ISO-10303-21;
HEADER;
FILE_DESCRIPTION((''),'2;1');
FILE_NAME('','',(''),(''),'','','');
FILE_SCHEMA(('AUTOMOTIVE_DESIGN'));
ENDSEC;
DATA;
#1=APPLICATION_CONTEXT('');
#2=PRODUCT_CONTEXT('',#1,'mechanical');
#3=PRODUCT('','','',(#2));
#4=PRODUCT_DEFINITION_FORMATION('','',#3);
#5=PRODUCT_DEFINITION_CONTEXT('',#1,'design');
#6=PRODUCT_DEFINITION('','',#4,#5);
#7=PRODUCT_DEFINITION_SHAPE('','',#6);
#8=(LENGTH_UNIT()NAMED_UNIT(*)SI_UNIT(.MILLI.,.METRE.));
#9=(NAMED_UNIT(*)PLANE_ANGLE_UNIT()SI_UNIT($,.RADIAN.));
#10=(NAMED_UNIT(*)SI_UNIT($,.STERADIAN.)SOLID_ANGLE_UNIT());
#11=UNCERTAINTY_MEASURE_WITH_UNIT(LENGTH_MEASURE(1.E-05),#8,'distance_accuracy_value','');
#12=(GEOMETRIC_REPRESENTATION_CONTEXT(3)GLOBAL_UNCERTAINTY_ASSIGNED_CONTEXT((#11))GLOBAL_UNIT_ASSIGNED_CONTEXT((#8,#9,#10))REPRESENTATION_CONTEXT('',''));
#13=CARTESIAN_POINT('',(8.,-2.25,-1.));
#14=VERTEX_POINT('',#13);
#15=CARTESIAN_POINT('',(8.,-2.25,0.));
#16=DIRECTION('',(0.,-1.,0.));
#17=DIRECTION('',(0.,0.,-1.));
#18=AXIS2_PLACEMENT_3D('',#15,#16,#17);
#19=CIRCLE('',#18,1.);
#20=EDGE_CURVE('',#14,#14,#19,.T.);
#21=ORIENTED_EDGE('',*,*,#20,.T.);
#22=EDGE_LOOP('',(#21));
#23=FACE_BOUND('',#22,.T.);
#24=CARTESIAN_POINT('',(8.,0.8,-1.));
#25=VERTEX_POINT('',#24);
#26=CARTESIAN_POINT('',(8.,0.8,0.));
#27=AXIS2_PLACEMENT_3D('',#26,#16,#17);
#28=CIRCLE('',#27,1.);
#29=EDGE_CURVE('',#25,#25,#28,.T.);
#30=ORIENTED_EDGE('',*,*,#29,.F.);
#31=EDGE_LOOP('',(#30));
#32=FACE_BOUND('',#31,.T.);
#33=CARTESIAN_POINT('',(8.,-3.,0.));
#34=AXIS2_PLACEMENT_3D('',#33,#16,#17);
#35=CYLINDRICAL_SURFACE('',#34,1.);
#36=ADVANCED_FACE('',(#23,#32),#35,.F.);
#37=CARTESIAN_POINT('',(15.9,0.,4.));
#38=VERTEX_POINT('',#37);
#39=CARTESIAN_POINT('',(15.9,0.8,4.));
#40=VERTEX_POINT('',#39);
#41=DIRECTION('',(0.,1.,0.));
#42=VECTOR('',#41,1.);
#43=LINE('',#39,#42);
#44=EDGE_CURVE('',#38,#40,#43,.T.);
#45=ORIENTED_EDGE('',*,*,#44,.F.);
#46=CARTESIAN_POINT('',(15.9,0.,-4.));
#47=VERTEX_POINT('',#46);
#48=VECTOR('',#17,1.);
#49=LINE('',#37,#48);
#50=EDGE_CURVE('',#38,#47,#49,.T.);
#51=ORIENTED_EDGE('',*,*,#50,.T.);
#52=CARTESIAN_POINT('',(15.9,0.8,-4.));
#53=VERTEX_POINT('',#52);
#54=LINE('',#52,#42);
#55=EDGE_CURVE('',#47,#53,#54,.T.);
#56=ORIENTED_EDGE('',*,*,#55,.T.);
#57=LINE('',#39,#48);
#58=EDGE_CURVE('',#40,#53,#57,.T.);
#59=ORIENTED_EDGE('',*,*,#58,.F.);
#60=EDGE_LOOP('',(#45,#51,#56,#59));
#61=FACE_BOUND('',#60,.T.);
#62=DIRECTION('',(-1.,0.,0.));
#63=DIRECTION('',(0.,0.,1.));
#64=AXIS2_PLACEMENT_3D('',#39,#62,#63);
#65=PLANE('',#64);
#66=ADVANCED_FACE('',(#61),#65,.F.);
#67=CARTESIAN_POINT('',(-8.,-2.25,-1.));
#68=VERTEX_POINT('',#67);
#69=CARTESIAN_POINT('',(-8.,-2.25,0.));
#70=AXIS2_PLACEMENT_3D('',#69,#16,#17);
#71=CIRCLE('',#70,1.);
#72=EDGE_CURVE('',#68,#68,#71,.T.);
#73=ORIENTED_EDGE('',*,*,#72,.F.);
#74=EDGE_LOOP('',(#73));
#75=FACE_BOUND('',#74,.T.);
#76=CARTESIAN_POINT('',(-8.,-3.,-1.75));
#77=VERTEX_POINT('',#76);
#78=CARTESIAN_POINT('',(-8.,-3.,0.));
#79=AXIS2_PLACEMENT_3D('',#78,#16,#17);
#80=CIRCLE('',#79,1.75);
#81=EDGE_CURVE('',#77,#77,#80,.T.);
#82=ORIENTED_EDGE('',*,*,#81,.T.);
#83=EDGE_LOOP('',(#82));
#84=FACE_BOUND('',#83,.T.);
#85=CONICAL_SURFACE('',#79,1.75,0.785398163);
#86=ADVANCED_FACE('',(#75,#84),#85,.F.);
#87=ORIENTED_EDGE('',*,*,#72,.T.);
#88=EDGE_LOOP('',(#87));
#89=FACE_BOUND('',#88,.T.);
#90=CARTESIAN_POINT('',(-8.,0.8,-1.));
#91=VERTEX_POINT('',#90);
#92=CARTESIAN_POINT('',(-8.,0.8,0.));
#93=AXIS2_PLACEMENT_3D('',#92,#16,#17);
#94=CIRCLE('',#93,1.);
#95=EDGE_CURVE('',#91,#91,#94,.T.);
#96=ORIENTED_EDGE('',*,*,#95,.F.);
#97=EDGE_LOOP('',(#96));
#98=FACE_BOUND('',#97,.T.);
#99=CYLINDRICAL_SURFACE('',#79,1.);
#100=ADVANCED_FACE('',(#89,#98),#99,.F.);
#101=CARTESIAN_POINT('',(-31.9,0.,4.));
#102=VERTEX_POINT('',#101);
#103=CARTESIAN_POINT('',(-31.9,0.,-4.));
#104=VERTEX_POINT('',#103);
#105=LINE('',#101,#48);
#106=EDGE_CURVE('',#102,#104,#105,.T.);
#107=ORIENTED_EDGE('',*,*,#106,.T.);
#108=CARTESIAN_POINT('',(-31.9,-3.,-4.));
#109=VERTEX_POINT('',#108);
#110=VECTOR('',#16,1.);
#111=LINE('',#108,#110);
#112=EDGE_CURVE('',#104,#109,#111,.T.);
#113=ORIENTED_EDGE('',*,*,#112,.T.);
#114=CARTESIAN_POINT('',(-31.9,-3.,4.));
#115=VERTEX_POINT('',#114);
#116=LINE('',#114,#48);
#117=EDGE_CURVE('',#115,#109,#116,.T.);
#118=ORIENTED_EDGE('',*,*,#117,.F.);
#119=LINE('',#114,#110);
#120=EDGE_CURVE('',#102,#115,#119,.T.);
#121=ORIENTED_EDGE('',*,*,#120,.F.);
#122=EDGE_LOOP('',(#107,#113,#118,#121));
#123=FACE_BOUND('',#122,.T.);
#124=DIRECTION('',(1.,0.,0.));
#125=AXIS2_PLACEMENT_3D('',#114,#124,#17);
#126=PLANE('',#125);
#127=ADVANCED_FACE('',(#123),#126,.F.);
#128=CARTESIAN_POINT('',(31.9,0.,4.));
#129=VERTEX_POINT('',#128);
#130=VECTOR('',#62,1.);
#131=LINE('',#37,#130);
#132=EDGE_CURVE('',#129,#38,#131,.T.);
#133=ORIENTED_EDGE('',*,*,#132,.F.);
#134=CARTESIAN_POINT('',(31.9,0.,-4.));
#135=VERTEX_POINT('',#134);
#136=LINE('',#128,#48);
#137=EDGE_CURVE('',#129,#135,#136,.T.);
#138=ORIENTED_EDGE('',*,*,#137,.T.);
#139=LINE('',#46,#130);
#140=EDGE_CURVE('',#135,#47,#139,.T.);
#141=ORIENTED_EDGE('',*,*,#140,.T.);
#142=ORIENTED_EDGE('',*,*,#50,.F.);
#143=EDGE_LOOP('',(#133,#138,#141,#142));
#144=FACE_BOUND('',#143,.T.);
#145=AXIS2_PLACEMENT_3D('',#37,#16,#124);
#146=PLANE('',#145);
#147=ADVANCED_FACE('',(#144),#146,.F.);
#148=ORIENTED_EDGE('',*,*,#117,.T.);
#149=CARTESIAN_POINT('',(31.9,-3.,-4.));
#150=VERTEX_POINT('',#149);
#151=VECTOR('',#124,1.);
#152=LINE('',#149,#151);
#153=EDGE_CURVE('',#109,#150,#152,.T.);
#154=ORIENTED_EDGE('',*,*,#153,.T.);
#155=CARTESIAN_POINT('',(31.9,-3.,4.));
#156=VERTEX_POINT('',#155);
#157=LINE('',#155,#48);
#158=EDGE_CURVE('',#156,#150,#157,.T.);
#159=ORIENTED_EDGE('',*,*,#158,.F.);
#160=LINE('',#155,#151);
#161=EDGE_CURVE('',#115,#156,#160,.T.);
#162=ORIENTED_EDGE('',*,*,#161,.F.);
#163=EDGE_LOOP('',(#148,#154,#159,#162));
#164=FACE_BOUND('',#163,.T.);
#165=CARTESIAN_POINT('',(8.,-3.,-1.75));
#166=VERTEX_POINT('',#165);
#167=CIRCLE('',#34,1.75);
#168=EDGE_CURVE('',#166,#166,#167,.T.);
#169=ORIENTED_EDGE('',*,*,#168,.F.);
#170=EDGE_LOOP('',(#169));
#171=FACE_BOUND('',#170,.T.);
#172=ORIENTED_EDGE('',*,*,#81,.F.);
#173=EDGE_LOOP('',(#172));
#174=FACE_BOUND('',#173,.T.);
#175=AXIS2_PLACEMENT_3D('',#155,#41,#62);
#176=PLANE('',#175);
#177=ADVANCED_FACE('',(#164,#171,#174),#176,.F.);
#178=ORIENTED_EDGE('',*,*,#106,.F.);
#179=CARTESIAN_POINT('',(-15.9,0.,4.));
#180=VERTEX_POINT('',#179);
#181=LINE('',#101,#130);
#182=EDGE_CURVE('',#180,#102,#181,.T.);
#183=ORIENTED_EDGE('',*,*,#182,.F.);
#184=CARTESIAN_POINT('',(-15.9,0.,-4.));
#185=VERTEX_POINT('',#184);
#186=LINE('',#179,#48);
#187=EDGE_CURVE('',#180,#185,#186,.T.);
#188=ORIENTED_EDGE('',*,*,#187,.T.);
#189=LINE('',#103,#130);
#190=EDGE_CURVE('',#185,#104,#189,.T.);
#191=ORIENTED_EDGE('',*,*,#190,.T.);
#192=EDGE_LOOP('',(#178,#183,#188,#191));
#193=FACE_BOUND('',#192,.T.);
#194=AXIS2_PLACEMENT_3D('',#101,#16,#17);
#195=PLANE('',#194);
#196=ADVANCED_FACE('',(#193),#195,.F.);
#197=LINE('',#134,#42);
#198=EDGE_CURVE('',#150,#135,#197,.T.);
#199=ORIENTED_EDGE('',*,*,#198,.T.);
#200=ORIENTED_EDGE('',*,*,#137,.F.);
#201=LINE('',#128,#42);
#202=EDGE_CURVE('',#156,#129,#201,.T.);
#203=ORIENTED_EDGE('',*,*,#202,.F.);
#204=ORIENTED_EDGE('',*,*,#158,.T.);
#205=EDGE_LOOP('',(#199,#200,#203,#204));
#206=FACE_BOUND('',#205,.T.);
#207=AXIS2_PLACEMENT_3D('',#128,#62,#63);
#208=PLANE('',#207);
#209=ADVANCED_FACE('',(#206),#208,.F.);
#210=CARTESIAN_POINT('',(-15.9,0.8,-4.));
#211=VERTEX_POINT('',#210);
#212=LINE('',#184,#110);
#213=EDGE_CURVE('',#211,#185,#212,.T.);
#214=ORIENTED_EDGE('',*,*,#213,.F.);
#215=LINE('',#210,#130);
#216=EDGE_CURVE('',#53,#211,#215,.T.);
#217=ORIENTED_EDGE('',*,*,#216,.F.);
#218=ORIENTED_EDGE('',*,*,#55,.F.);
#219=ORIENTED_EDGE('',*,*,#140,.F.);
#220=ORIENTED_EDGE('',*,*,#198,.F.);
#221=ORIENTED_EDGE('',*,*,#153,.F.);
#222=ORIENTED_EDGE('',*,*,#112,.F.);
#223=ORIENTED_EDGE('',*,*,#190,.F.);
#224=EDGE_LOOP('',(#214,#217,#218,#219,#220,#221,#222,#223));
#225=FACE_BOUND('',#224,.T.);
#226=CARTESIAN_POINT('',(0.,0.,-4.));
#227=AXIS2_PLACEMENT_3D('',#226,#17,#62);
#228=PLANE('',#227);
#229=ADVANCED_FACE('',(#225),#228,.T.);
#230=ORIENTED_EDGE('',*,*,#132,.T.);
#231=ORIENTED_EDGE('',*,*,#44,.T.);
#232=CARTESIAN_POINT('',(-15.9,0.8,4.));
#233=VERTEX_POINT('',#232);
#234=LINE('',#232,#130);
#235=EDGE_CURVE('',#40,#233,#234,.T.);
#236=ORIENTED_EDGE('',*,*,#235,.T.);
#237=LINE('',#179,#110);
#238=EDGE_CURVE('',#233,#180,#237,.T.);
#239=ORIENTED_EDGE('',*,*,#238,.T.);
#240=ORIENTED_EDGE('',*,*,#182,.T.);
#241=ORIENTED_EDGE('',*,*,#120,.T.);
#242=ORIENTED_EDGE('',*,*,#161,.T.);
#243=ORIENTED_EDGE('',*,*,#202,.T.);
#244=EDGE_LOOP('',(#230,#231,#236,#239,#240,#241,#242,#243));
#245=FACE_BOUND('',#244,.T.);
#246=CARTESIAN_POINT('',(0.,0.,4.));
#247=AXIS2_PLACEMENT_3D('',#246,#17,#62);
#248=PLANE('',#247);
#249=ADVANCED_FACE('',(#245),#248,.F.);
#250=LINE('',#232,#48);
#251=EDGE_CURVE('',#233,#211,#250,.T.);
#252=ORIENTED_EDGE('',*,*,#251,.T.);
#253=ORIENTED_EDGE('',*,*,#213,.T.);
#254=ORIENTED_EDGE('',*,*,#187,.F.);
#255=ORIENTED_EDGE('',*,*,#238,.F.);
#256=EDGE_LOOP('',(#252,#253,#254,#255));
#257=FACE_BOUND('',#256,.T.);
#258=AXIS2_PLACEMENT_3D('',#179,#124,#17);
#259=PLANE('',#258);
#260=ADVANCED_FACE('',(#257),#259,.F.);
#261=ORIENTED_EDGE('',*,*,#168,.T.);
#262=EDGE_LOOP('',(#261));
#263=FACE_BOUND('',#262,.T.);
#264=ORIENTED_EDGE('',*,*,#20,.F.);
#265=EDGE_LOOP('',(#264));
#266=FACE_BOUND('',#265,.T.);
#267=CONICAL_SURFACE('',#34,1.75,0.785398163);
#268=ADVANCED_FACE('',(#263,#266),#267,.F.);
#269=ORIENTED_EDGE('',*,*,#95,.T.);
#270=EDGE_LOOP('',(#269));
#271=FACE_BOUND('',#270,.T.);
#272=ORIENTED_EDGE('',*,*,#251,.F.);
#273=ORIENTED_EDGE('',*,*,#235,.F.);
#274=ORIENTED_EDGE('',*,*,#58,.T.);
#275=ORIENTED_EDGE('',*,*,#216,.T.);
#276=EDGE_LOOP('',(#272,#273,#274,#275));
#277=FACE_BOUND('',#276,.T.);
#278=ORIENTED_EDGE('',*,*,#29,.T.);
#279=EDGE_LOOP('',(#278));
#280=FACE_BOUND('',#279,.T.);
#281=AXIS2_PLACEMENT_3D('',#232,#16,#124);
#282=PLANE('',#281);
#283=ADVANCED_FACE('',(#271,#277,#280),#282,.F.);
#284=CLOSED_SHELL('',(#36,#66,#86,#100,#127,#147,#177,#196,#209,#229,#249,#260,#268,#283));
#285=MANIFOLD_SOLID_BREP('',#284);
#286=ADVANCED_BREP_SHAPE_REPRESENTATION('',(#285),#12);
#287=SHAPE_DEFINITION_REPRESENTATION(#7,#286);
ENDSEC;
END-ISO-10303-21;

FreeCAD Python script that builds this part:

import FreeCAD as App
import Part
import Sketcher

doc = App.newDocument("Part")
body = doc.addObject("PartDesign::Body", "Body")

# Sketch on XY plane
sketch1 = body.newObject("Sketcher::SketchObject", "Sketch")
sketch1.AttachmentSupport = (doc.getObject("XY_Plane"), [""])
sketch1.MapMode = "FlatFace"
sketch1.addGeometry([
    Part.LineSegment(App.Vector(-15.9, 0, 0), App.Vector(-31.9, 0, 0)),  # 0
    Part.LineSegment(App.Vector(-31.9, 0, 0), App.Vector(-31.9, -3, 0)),  # 1
    Part.LineSegment(App.Vector(-31.9, -3, 0), App.Vector(31.9, -3, 0)),  # 2
    Part.LineSegment(App.Vector(31.9, -3, 0), App.Vector(31.9, 0, 0)),  # 3
    Part.LineSegment(App.Vector(31.9, 0, 0), App.Vector(15.9, 0, 0)),  # 4
    Part.LineSegment(App.Vector(15.9, 0, 0), App.Vector(15.9, 0.8, 0)),  # 5
    Part.LineSegment(App.Vector(15.9, 0.8, 0), App.Vector(-15.9, 0.8, 0)),  # 6
    Part.LineSegment(App.Vector(-15.9, 0.8, 0), App.Vector(-15.9, 0, 0)),  # 7
], False)
sketch1.addConstraint([
    Sketcher.Constraint("Coincident", 0, 2, 1, 1),
    Sketcher.Constraint("Coincident", 1, 2, 2, 1),
    Sketcher.Constraint("Coincident", 2, 2, 3, 1),
    Sketcher.Constraint("Coincident", 3, 2, 4, 1),
    Sketcher.Constraint("Coincident", 4, 2, 5, 1),
    Sketcher.Constraint("Coincident", 5, 2, 6, 1),
    Sketcher.Constraint("Coincident", 6, 2, 7, 1),
    Sketcher.Constraint("Coincident", 7, 2, 0, 1),
    Sketcher.Constraint("Horizontal", 0),
    Sketcher.Constraint("Vertical", 1),
    Sketcher.Constraint("Horizontal", 2),
    Sketcher.Constraint("Vertical", 3),
    Sketcher.Constraint("Horizontal", 4),
    Sketcher.Constraint("Vertical", 5),
    Sketcher.Constraint("Horizontal", 6),
    Sketcher.Constraint("Vertical", 7),
    Sketcher.Constraint("Symmetric", 0, 2, 3, 2, -1, 1),
    Sketcher.Constraint("Symmetric", 4, 2, 7, 2, -2),
    Sketcher.Constraint("DistanceX", 0, 2, 0, 1, 16.0),
    Sketcher.Constraint("DistanceY", 1, 2, 1, 1, 3.0),
    Sketcher.Constraint("DistanceX", 2, 1, 2, 2, 63.8),
    Sketcher.Constraint("DistanceY", 5, 1, 5, 2, 0.8),
])
pad1 = body.newObject("PartDesign::Pad", "Pad")
pad1.Profile = sketch1
pad1.Length = 8
pad1.Midplane = True

# Sketch on XZ plane
sketch2 = body.newObject("Sketcher::SketchObject", "Sketch001")
sketch2.AttachmentSupport = (doc.getObject("XZ_Plane"), [""])
sketch2.MapMode = "FlatFace"
sketch2.AttachmentOffset = App.Placement(App.Vector(0, 0, 3), App.Rotation())
sketch2.addGeometry([
    Part.Circle(App.Vector(-8, 0, 0), App.Vector(0, 0, 1), 1),
    Part.Circle(App.Vector(8, 0, 0), App.Vector(0, 0, 1), 1),
], False)
sketch2.addConstraint([
    Sketcher.Constraint("Equal", 0, 1),
    Sketcher.Constraint("Symmetric", 0, 3, 1, 3, -1, 1),
    Sketcher.Constraint("PointOnObject", 0, 3, -1),
    Sketcher.Constraint("Diameter", 0, 2.0),
    Sketcher.Constraint("DistanceX", 0, 3, -1, 1, 8.0),
])
doc.recompute()
hole = body.newObject("PartDesign::Hole", "Hole")
hole.Profile = sketch2
hole.ThreadType = "None"
hole.Diameter = 2
hole.DepthType = "ThroughAll"
hole.HoleCutType = "Countersink"
hole.HoleCutDiameter = 3.5
hole.HoleCutCountersinkAngle = 90

doc.recompute()
